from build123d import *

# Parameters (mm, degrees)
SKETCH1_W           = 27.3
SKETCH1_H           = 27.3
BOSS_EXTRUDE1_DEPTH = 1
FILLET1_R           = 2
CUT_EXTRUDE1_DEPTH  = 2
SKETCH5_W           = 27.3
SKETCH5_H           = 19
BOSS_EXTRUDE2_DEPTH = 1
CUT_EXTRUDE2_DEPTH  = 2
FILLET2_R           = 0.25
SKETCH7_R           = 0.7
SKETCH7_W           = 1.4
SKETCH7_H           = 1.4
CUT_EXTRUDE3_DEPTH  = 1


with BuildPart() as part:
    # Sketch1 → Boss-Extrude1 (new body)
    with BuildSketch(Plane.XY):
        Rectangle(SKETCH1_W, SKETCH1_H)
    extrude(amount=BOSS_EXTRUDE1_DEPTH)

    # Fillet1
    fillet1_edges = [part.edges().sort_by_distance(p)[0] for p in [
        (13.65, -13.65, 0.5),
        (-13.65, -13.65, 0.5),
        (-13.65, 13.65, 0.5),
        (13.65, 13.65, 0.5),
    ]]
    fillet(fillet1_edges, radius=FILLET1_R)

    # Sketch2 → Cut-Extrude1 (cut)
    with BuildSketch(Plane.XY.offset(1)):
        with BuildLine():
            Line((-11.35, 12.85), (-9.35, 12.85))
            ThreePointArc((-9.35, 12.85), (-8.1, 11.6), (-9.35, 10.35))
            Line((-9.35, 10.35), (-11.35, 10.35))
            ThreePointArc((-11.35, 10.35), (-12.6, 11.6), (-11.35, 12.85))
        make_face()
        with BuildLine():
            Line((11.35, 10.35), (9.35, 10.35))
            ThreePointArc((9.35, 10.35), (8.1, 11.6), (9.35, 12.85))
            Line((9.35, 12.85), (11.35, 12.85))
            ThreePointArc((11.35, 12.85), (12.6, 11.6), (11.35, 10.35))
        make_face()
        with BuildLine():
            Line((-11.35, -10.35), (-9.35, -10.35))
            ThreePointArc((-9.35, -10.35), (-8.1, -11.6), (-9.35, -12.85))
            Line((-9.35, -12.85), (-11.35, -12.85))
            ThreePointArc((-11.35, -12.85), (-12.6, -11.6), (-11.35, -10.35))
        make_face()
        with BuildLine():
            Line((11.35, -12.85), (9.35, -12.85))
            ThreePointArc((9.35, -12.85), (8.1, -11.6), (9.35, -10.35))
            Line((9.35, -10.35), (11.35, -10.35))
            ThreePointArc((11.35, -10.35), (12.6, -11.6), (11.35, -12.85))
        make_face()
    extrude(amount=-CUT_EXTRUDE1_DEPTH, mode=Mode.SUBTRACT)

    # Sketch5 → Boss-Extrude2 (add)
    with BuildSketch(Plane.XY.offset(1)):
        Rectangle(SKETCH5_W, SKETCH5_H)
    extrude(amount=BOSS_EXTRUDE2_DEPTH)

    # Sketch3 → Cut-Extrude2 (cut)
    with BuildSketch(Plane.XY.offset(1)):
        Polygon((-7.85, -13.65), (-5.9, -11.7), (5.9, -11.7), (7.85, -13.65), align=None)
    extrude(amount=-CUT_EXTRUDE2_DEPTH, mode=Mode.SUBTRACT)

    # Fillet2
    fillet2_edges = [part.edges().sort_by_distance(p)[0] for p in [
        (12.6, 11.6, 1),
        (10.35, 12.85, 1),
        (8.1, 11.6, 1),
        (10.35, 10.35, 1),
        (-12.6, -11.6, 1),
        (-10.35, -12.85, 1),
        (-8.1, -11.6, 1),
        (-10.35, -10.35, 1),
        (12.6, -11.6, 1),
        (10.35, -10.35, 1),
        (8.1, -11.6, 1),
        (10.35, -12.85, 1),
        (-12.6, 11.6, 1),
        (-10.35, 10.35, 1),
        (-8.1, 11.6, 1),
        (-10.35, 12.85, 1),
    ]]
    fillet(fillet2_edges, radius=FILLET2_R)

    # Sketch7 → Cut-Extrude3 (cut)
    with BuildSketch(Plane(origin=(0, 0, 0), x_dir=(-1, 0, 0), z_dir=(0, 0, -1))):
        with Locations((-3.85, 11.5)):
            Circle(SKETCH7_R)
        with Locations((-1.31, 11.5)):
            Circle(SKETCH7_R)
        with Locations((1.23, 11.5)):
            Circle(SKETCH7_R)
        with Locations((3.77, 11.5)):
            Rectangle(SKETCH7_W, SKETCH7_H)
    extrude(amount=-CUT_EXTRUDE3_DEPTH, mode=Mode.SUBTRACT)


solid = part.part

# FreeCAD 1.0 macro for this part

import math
import FreeCAD as App
import Part
import Sketcher


def edges_at(feature, points):
    """Names of the edges that pass closest to the given points."""
    edges = feature.Shape.Edges
    near = lambda p: min(range(len(edges)), key=lambda i: edges[i].distToShape(Part.Vertex(*p))[0])
    return sorted({f"Edge{near(p) + 1}" for p in points})


def add_polygon(sketch, points):
    """Adds a closed chain of lines whose ends are joined by coincident constraints."""
    first, n = sketch.GeometryCount, len(points)
    for a, b in zip(points, points[1:] + points[:1]):
        sketch.addGeometry(Part.LineSegment(App.Vector(*a, 0), App.Vector(*b, 0)), False)
    for i in range(n):
        sketch.addConstraint(Sketcher.Constraint("Coincident", first + i, 2, first + (i + 1) % n, 1))

doc = App.newDocument("Part")
body = doc.addObject("PartDesign::Body", "Body")

sketch1 = doc.addObject("Sketcher::SketchObject", "Sketch")
body.addObject(sketch1)
sketch1.AttachmentSupport = (doc.XY_Plane, [""])
sketch1.MapMode = "FlatFace"
add_polygon(sketch1, [(-14, 14), (-14, -14), (14, -14), (14, 14)])
sketch1.addConstraint(Sketcher.Constraint("Vertical", 0))
sketch1.addConstraint(Sketcher.Constraint("Horizontal", 1))
sketch1.addConstraint(Sketcher.Constraint("Vertical", 2))
sketch1.addConstraint(Sketcher.Constraint("Horizontal", 3))
sketch1.addConstraint(Sketcher.Constraint("Symmetric", 0, 2, 2, 2, -1, 1))
sketch1.addConstraint(Sketcher.Constraint("Equal", 3, 0))
sketch1.addConstraint(Sketcher.Constraint("DistanceX", 1, 1, 1, 2, 27.3))
pad1 = doc.addObject("PartDesign::Pad", "Pad")
body.addObject(pad1)
pad1.Profile = sketch1
pad1.Length = 1
doc.recompute()

fillet = doc.addObject("PartDesign::Fillet", "Fillet")
body.addObject(fillet)
fillet.Base = (pad1, edges_at(pad1, [
    (13.65, -13.65, 0.5),
    (-13.65, -13.65, 0.5),
    (-13.65, 13.65, 0.5),
    (13.65, 13.65, 0.5),
]))
fillet.Radius = 2

sketch2 = doc.addObject("Sketcher::SketchObject", "Sketch001")
body.addObject(sketch2)
sketch2.AttachmentSupport = (doc.XY_Plane, [""])
sketch2.MapMode = "FlatFace"
sketch2.AttachmentOffset = App.Placement(App.Vector(0, 0, 1), App.Rotation())
sketch2.addGeometry(Part.LineSegment(App.Vector(-9.3, 12.8, 0), App.Vector(-11.3, 12.8, 0)), False)
sketch2.addGeometry(Part.ArcOfCircle(Part.Circle(App.Vector(-11.3, 11.6, 0), App.Vector(0, 0, 1), 1.2), math.radians(90), math.radians(270)), False)
sketch2.addGeometry(Part.LineSegment(App.Vector(-11.3, 10.3, 0), App.Vector(-9.3, 10.3, 0)), False)
sketch2.addGeometry(Part.ArcOfCircle(Part.Circle(App.Vector(-9.3, 11.6, 0), App.Vector(0, 0, 1), 1.2), math.radians(-90), math.radians(90)), False)
sketch2.addGeometry(Part.LineSegment(App.Vector(9.3, 10.3, 0), App.Vector(11.3, 10.3, 0)), False)
sketch2.addGeometry(Part.ArcOfCircle(Part.Circle(App.Vector(11.3, 11.6, 0), App.Vector(0, 0, 1), 1.2), math.radians(-90), math.radians(90)), False)
sketch2.addGeometry(Part.LineSegment(App.Vector(11.3, 12.8, 0), App.Vector(9.3, 12.8, 0)), False)
sketch2.addGeometry(Part.ArcOfCircle(Part.Circle(App.Vector(9.3, 11.6, 0), App.Vector(0, 0, 1), 1.2), math.radians(90), math.radians(270)), False)
sketch2.addGeometry(Part.LineSegment(App.Vector(-9.3, -10.3, 0), App.Vector(-11.3, -10.3, 0)), False)
sketch2.addGeometry(Part.ArcOfCircle(Part.Circle(App.Vector(-11.3, -11.6, 0), App.Vector(0, 0, 1), 1.2), math.radians(90), math.radians(270)), False)
sketch2.addGeometry(Part.LineSegment(App.Vector(-11.3, -12.8, 0), App.Vector(-9.3, -12.8, 0)), False)
sketch2.addGeometry(Part.ArcOfCircle(Part.Circle(App.Vector(-9.3, -11.6, 0), App.Vector(0, 0, 1), 1.2), math.radians(-90), math.radians(90)), False)
sketch2.addGeometry(Part.LineSegment(App.Vector(9.3, -12.8, 0), App.Vector(11.3, -12.8, 0)), False)
sketch2.addGeometry(Part.ArcOfCircle(Part.Circle(App.Vector(11.3, -11.6, 0), App.Vector(0, 0, 1), 1.2), math.radians(-90), math.radians(90)), False)
sketch2.addGeometry(Part.LineSegment(App.Vector(11.3, -10.3, 0), App.Vector(9.3, -10.3, 0)), False)
sketch2.addGeometry(Part.ArcOfCircle(Part.Circle(App.Vector(9.3, -11.6, 0), App.Vector(0, 0, 1), 1.2), math.radians(90), math.radians(270)), False)
sketch2.addConstraint(Sketcher.Constraint("Tangent", 0, 2, 1, 1))
sketch2.addConstraint(Sketcher.Constraint("Tangent", 1, 2, 2, 1))
sketch2.addConstraint(Sketcher.Constraint("Tangent", 2, 2, 3, 1))
sketch2.addConstraint(Sketcher.Constraint("Tangent", 3, 2, 0, 1))
sketch2.addConstraint(Sketcher.Constraint("Tangent", 4, 2, 5, 1))
sketch2.addConstraint(Sketcher.Constraint("Tangent", 5, 2, 6, 1))
sketch2.addConstraint(Sketcher.Constraint("Tangent", 6, 2, 7, 1))
sketch2.addConstraint(Sketcher.Constraint("Tangent", 7, 2, 4, 1))
sketch2.addConstraint(Sketcher.Constraint("Tangent", 8, 2, 9, 1))
sketch2.addConstraint(Sketcher.Constraint("Tangent", 9, 2, 10, 1))
sketch2.addConstraint(Sketcher.Constraint("Tangent", 10, 2, 11, 1))
sketch2.addConstraint(Sketcher.Constraint("Tangent", 11, 2, 8, 1))
sketch2.addConstraint(Sketcher.Constraint("Tangent", 12, 2, 13, 1))
sketch2.addConstraint(Sketcher.Constraint("Tangent", 13, 2, 14, 1))
sketch2.addConstraint(Sketcher.Constraint("Tangent", 14, 2, 15, 1))
sketch2.addConstraint(Sketcher.Constraint("Tangent", 15, 2, 12, 1))
sketch2.addConstraint(Sketcher.Constraint("Horizontal", 0))
sketch2.addConstraint(Sketcher.Constraint("Horizontal", 2))
sketch2.addConstraint(Sketcher.Constraint("Horizontal", 4))
sketch2.addConstraint(Sketcher.Constraint("Horizontal", 6))
sketch2.addConstraint(Sketcher.Constraint("Horizontal", 8))
sketch2.addConstraint(Sketcher.Constraint("Horizontal", 10))
sketch2.addConstraint(Sketcher.Constraint("Horizontal", 12))
sketch2.addConstraint(Sketcher.Constraint("Horizontal", 14))
sketch2.addConstraint(Sketcher.Constraint("Equal", 3, 5))
sketch2.addConstraint(Sketcher.Constraint("Equal", 7, 9))
sketch2.addConstraint(Sketcher.Constraint("Equal", 11, 13))
sketch2.addConstraint(Sketcher.Constraint("Symmetric", 5, 3, 9, 3, -1, 1))
sketch2.addConstraint(Sketcher.Constraint("Symmetric", 1, 3, 13, 3, -1, 1))
sketch2.addConstraint(Sketcher.Constraint("Symmetric", 1, 3, 5, 3, -2))
sketch2.addConstraint(Sketcher.Constraint("Vertical", 3, 3, 11, 3))
sketch2.addConstraint(Sketcher.Constraint("Vertical", 7, 3, 15, 3))
sketch2.addConstraint(Sketcher.Constraint("Equal", 2, 4))
sketch2.addConstraint(Sketcher.Constraint("DistanceX", 0, 2, 0, 1, 2.0))
sketch2.addConstraint(Sketcher.Constraint("Radius", 1, 1.25))
sketch2.addConstraint(Sketcher.Constraint("DistanceY", -1, 1, 1, 3, 11.6))
sketch2.addConstraint(Sketcher.Constraint("DistanceX", 3, 3, 5, 3, 20.7))
pocket1 = doc.addObject("PartDesign::Pocket", "Pocket")
body.addObject(pocket1)
pocket1.Profile = sketch2
pocket1.Length = 2

sketch3 = doc.addObject("Sketcher::SketchObject", "Sketch002")
body.addObject(sketch3)
sketch3.AttachmentSupport = (doc.XY_Plane, [""])
sketch3.MapMode = "FlatFace"
sketch3.AttachmentOffset = App.Placement(App.Vector(0, 0, 1), App.Rotation())
add_polygon(sketch3, [(-14, 10), (-14, -10), (14, -10), (14, 10)])
sketch3.addConstraint(Sketcher.Constraint("Vertical", 0))
sketch3.addConstraint(Sketcher.Constraint("Horizontal", 1))
sketch3.addConstraint(Sketcher.Constraint("Vertical", 2))
sketch3.addConstraint(Sketcher.Constraint("Horizontal", 3))
sketch3.addConstraint(Sketcher.Constraint("Symmetric", 0, 2, 2, 2, -1, 1))
sketch3.addConstraint(Sketcher.Constraint("DistanceY", 0, 2, 0, 1, 19.0))
sketch3.addConstraint(Sketcher.Constraint("DistanceX", 1, 1, 1, 2, 27.3))
pad2 = doc.addObject("PartDesign::Pad", "Pad001")
body.addObject(pad2)
pad2.Profile = sketch3
pad2.Length = 1

sketch4 = doc.addObject("Sketcher::SketchObject", "Sketch003")
body.addObject(sketch4)
sketch4.AttachmentSupport = (doc.XY_Plane, [""])
sketch4.MapMode = "FlatFace"
sketch4.AttachmentOffset = App.Placement(App.Vector(0, 0, 1), App.Rotation())
add_polygon(sketch4, [(-5.9, -11.7), (-7.8, -13.7), (7.8, -13.7), (5.9, -11.7)])
sketch4.addConstraint(Sketcher.Constraint("Horizontal", 1))
sketch4.addConstraint(Sketcher.Constraint("Horizontal", 3))
sketch4.addConstraint(Sketcher.Constraint("Perpendicular", 0, 2))
sketch4.addConstraint(Sketcher.Constraint("Equal", 0, 2))
sketch4.addConstraint(Sketcher.Constraint("DistanceX", 1, 1, 1, 2, 15.7))
sketch4.addConstraint(Sketcher.Constraint("DistanceX", 3, 2, 3, 1, 11.8))
sketch4.addConstraint(Sketcher.Constraint("DistanceX", -1, 1, 2, 2, 5.9))
sketch4.addConstraint(Sketcher.Constraint("DistanceY", 2, 2, -1, 1, 11.7))
pocket2 = doc.addObject("PartDesign::Pocket", "Pocket001")
body.addObject(pocket2)
pocket2.Profile = sketch4
pocket2.Length = 2
doc.recompute()

fillet2 = doc.addObject("PartDesign::Fillet", "Fillet001")
body.addObject(fillet2)
fillet2.Base = (pocket2, edges_at(pocket2, [
    (12.6, 11.6, 1),
    (10.35, 12.85, 1),
    (8.1, 11.6, 1),
    (10.35, 10.35, 1),
    (-12.6, -11.6, 1),
    (-10.35, -12.85, 1),
    (-8.1, -11.6, 1),
    (-10.35, -10.35, 1),
    (12.6, -11.6, 1),
    (10.35, -10.35, 1),
    (8.1, -11.6, 1),
    (10.35, -12.85, 1),
    (-12.6, 11.6, 1),
    (-10.35, 10.35, 1),
    (-8.1, 11.6, 1),
    (-10.35, 12.85, 1),
]))
fillet2.Radius = 0.25

sketch5 = doc.addObject("Sketcher::SketchObject", "Sketch004")
body.addObject(sketch5)
sketch5.AttachmentSupport = (doc.XY_Plane, [""])
sketch5.MapMode = "FlatFace"
sketch5.addGeometry(Part.Circle(App.Vector(3.9, 11.5, 0), App.Vector(0, 0, 1), 0.7), False)
sketch5.addGeometry(Part.Circle(App.Vector(1.3, 11.5, 0), App.Vector(0, 0, 1), 0.7), False)
sketch5.addGeometry(Part.Circle(App.Vector(-1.2, 11.5, 0), App.Vector(0, 0, 1), 0.7), False)
add_polygon(sketch5, [(-3.1, 12.2), (-3.1, 10.8), (-4.5, 10.8), (-4.5, 12.2)])
sketch5.addConstraint(Sketcher.Constraint("Vertical", 3))
sketch5.addConstraint(Sketcher.Constraint("Horizontal", 4))
sketch5.addConstraint(Sketcher.Constraint("Vertical", 5))
sketch5.addConstraint(Sketcher.Constraint("Horizontal", 6))
sketch5.addConstraint(Sketcher.Constraint("Equal", 0, 1))
sketch5.addConstraint(Sketcher.Constraint("Equal", 1, 2))
sketch5.addConstraint(Sketcher.Constraint("Horizontal", 0, 3, 1, 3))
sketch5.addConstraint(Sketcher.Constraint("Horizontal", 1, 3, 2, 3))
sketch5.addConstraint(Sketcher.Constraint("Equal", 6, 3))
sketch5.addConstraint(Sketcher.Constraint("Diameter", 0, 1.4))
sketch5.addConstraint(Sketcher.Constraint("DistanceX", 4, 2, 4, 1, 1.4))
sketch5.addConstraint(Sketcher.Constraint("DistanceY", -1, 1, 0, 3, 11.5))
sketch5.addConstraint(Sketcher.Constraint("DistanceY", -1, 1, 3, 2, 10.8))
sketch5.addConstraint(Sketcher.Constraint("DistanceX", -1, 1, 0, 3, 3.85))
sketch5.addConstraint(Sketcher.Constraint("DistanceX", -1, 1, 1, 3, 1.31))
sketch5.addConstraint(Sketcher.Constraint("DistanceX", 2, 3, -1, 1, 1.23))
sketch5.addConstraint(Sketcher.Constraint("DistanceX", 3, 2, -1, 1, 3.07))
pocket3 = doc.addObject("PartDesign::Pocket", "Pocket002")
body.addObject(pocket3)
pocket3.Profile = sketch5
pocket3.Length = 1
pocket3.Reversed = True

doc.recompute()
